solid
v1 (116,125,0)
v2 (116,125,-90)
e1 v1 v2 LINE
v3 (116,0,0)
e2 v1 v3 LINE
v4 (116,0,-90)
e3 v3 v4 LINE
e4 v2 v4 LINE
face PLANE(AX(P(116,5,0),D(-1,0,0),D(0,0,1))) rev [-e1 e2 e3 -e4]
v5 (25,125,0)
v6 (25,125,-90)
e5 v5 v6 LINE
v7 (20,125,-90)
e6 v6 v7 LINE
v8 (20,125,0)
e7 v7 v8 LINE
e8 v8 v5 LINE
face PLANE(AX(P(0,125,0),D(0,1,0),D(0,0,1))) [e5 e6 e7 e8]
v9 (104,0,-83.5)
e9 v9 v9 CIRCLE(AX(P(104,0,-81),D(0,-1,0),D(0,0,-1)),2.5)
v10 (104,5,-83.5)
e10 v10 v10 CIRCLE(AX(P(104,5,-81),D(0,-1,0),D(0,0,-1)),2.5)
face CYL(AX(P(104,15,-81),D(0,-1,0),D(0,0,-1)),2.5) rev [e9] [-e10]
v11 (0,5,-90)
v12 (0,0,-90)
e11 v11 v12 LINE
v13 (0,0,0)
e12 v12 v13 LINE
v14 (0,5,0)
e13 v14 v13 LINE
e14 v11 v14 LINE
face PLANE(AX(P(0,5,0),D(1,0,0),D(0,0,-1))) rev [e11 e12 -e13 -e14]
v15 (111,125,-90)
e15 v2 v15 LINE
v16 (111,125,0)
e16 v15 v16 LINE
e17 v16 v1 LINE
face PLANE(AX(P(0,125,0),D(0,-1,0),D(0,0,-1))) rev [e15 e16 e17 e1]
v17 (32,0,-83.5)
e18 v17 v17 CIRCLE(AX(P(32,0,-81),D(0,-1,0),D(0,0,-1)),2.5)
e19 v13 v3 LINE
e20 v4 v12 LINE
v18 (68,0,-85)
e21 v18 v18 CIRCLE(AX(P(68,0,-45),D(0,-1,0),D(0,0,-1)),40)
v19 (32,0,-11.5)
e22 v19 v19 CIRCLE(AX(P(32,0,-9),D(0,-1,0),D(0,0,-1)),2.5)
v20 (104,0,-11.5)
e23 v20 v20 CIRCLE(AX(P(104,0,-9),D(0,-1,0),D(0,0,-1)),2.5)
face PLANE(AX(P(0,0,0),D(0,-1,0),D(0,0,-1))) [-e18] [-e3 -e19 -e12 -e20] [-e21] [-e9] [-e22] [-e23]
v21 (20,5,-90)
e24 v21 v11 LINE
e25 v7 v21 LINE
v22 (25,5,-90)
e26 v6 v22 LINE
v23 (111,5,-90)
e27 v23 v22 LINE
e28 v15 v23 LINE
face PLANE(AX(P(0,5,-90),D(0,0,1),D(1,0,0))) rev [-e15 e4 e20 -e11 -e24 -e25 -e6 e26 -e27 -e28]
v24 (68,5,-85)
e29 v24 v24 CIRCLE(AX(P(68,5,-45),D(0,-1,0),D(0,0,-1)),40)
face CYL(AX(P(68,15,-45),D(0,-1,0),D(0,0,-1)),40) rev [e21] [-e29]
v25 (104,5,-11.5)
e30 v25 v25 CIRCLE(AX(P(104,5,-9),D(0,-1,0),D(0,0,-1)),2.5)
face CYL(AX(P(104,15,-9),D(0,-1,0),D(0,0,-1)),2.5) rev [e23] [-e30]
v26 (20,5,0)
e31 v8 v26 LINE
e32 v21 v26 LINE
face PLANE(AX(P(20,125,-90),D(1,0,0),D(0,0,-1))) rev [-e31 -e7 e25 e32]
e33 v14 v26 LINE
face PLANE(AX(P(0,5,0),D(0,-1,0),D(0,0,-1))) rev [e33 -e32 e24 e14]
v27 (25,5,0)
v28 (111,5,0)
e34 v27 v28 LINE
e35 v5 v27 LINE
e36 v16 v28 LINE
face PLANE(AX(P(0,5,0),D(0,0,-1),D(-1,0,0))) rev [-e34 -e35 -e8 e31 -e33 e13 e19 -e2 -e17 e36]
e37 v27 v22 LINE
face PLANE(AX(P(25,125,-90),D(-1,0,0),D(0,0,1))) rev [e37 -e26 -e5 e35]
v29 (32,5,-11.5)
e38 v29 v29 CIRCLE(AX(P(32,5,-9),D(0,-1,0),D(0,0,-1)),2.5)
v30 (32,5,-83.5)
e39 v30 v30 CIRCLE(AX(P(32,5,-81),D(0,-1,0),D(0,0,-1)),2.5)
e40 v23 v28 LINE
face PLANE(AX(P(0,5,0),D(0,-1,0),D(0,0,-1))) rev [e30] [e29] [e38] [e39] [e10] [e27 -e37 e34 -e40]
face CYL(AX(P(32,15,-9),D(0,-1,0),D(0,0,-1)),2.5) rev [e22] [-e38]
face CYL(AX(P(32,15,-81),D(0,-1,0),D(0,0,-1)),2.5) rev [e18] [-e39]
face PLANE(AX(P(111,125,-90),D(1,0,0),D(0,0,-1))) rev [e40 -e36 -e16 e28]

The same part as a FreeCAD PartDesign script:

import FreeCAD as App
import Part
import Sketcher

V = App.Vector
Q = App.Units.Quantity

doc = App.newDocument("Part")
params = doc.addObject("Spreadsheet::Sheet", "Params")
for row, (alias, value) in enumerate([
    ("sketch1_width", "116 mm"),
    ("sketch1_height", "90 mm"),
    ("pad1_length", "5 mm"),
    ("sketch2_width", "5 mm"),
    ("sketch2_height", "90 mm"),
    ("pad2_length", "120 mm"),
    ("sketch3_diameter", "80 mm"),
    ("pocket1_length", "15 mm"),
    ("sketch4_diameter", "5 mm"),
    ("pocket2_length", "15 mm"),
    ("sketch5_width", "5 mm"),
    ("sketch5_height", "90 mm"),
    ("pad3_length", "120 mm"),
], start=1):
    params.set(f"A{row}", alias)
    params.set(f"B{row}", "=" + value)
    params.setAlias(f"B{row}", alias)

body = doc.addObject("PartDesign::Body", "Body")

# Sketch on XZ plane
sketch1 = body.newObject("Sketcher::SketchObject", "Sketch")
sketch1.AttachmentSupport = (doc.getObject("XZ_Plane"), [""])
sketch1.MapMode = "FlatFace"
sketch1.addGeometry(Part.LineSegment(V(0, -90, 0), V(0, 0, 0)), False)
sketch1.addGeometry(Part.LineSegment(V(0, 0, 0), V(116, 0, 0)), False)
sketch1.addGeometry(Part.LineSegment(V(116, 0, 0), V(116, -90, 0)), False)
sketch1.addGeometry(Part.LineSegment(V(116, -90, 0), V(0, -90, 0)), False)
sketch1.addConstraint(Sketcher.Constraint("Coincident", 0, 2, 1, 1))
sketch1.addConstraint(Sketcher.Constraint("Coincident", 1, 2, 2, 1))
sketch1.addConstraint(Sketcher.Constraint("Coincident", 2, 2, 3, 1))
sketch1.addConstraint(Sketcher.Constraint("Coincident", 3, 2, 0, 1))
sketch1.addConstraint(Sketcher.Constraint("Vertical", 0))
sketch1.addConstraint(Sketcher.Constraint("Horizontal", 1))
sketch1.addConstraint(Sketcher.Constraint("Vertical", 2))
sketch1.addConstraint(Sketcher.Constraint("Horizontal", 3))
sketch1.addConstraint(Sketcher.Constraint("Coincident", 0, 2, -1, 1))
sketch1.addConstraint(Sketcher.Constraint("DistanceX", 1, 1, 1, 2, Q("116 mm")))
sketch1.addConstraint(Sketcher.Constraint("DistanceY", 0, 1, 0, 2, Q("90 mm")))
sketch1.setExpression("Constraints[9]", "Params.sketch1_width")
sketch1.setExpression("Constraints[10]", "Params.sketch1_height")
pad1 = body.newObject("PartDesign::Pad", "Pad")
pad1.Profile = sketch1
pad1.setExpression("Length", "Params.pad1_length")
pad1.Reversed = True

# Sketch on XZ plane
sketch2 = body.newObject("Sketcher::SketchObject", "Sketch001")
sketch2.AttachmentSupport = (doc.getObject("XZ_Plane"), [""])
sketch2.MapMode = "FlatFace"
sketch2.AttachmentOffset = App.Placement(V(0, 0, -5), App.Rotation())
sketch2.addGeometry(Part.LineSegment(V(111, -90, 0), V(111, 0, 0)), False)
sketch2.addGeometry(Part.LineSegment(V(111, 0, 0), V(116, 0, 0)), False)
sketch2.addGeometry(Part.LineSegment(V(116, 0, 0), V(116, -90, 0)), False)
sketch2.addGeometry(Part.LineSegment(V(116, -90, 0), V(111, -90, 0)), False)
sketch2.addConstraint(Sketcher.Constraint("Coincident", 0, 2, 1, 1))
sketch2.addConstraint(Sketcher.Constraint("Coincident", 1, 2, 2, 1))
sketch2.addConstraint(Sketcher.Constraint("Coincident", 2, 2, 3, 1))
sketch2.addConstraint(Sketcher.Constraint("Coincident", 3, 2, 0, 1))
sketch2.addConstraint(Sketcher.Constraint("Vertical", 0))
sketch2.addConstraint(Sketcher.Constraint("Horizontal", 1))
sketch2.addConstraint(Sketcher.Constraint("Vertical", 2))
sketch2.addConstraint(Sketcher.Constraint("Horizontal", 3))
sketch2.addConstraint(Sketcher.Constraint("PointOnObject", 0, 2, -1))
sketch2.addConstraint(Sketcher.Constraint("DistanceX", 1, 1, 1, 2, Q("5 mm")))
sketch2.addConstraint(Sketcher.Constraint("DistanceY", 0, 1, 0, 2, Q("90 mm")))
sketch2.addConstraint(Sketcher.Constraint("DistanceX", -1, 1, 0, 2, Q("111 mm")))
sketch2.setExpression("Constraints[9]", "Params.sketch2_width")
sketch2.setExpression("Constraints[10]", "Params.sketch2_height")
pad2 = body.newObject("PartDesign::Pad", "Pad001")
pad2.Profile = sketch2
pad2.setExpression("Length", "Params.pad2_length")
pad2.Reversed = True

# Sketch on XZ plane
sketch3 = body.newObject("Sketcher::SketchObject", "Sketch002")
sketch3.AttachmentSupport = (doc.getObject("XZ_Plane"), [""])
sketch3.MapMode = "FlatFace"
sketch3.addGeometry(Part.Circle(V(68, -45, 0), V(0, 0, 1), 40), False)
sketch3.addConstraint(Sketcher.Constraint("Diameter", 0, Q("80 mm")))
sketch3.addConstraint(Sketcher.Constraint("DistanceX", -1, 1, 0, 3, Q("68 mm")))
sketch3.addConstraint(Sketcher.Constraint("DistanceY", 0, 3, -1, 1, Q("45 mm")))
sketch3.setExpression("Constraints[0]", "Params.sketch3_diameter")
pocket1 = body.newObject("PartDesign::Pocket", "Pocket")
pocket1.Profile = sketch3
pocket1.setExpression("Length", "Params.pocket1_length")

# Sketch on XZ plane
sketch4 = body.newObject("Sketcher::SketchObject", "Sketch003")
sketch4.AttachmentSupport = (doc.getObject("XZ_Plane"), [""])
sketch4.MapMode = "FlatFace"
sketch4.addGeometry(Part.Circle(V(32, -9, 0), V(0, 0, 1), 2.5), False)
sketch4.addGeometry(Part.Circle(V(104, -9, 0), V(0, 0, 1), 2.5), False)
sketch4.addGeometry(Part.Circle(V(104, -81, 0), V(0, 0, 1), 2.5), False)
sketch4.addGeometry(Part.Circle(V(32, -81, 0), V(0, 0, 1), 2.5), False)
sketch4.addConstraint(Sketcher.Constraint("Equal", 0, 1))
sketch4.addConstraint(Sketcher.Constraint("Equal", 1, 2))
sketch4.addConstraint(Sketcher.Constraint("Equal", 2, 3))
sketch4.addConstraint(Sketcher.Constraint("Horizontal", 0, 3, 1, 3))
sketch4.addConstraint(Sketcher.Constraint("Horizontal", 2, 3, 3, 3))
sketch4.addConstraint(Sketcher.Constraint("Vertical", 1, 3, 2, 3))
sketch4.addConstraint(Sketcher.Constraint("Vertical", 0, 3, 3, 3))
sketch4.addConstraint(Sketcher.Constraint("Diameter", 0, Q("5 mm")))
sketch4.addConstraint(Sketcher.Constraint("DistanceX", -1, 1, 0, 3, Q("32 mm")))
sketch4.addConstraint(Sketcher.Constraint("DistanceY", 0, 3, -1, 1, Q("9 mm")))
sketch4.addConstraint(Sketcher.Constraint("DistanceX", -1, 1, 1, 3, Q("104 mm")))
sketch4.addConstraint(Sketcher.Constraint("DistanceY", 2, 3, -1, 1, Q("81 mm")))
sketch4.setExpression("Constraints[7]", "Params.sketch4_diameter")
pocket2 = body.newObject("PartDesign::Pocket", "Pocket001")
pocket2.Profile = sketch4
pocket2.setExpression("Length", "Params.pocket2_length")

# Sketch on XZ plane
sketch5 = body.newObject("Sketcher::SketchObject", "Sketch004")
sketch5.AttachmentSupport = (doc.getObject("XZ_Plane"), [""])
sketch5.MapMode = "FlatFace"
sketch5.AttachmentOffset = App.Placement(V(0, 0, -5), App.Rotation())
sketch5.addGeometry(Part.LineSegment(V(20, -90, 0), V(20, 0, 0)), False)
sketch5.addGeometry(Part.LineSegment(V(20, 0, 0), V(25, 0, 0)), False)
sketch5.addGeometry(Part.LineSegment(V(25, 0, 0), V(25, -90, 0)), False)
sketch5.addGeometry(Part.LineSegment(V(25, -90, 0), V(20, -90, 0)), False)
sketch5.addConstraint(Sketcher.Constraint("Coincident", 0, 2, 1, 1))
sketch5.addConstraint(Sketcher.Constraint("Coincident", 1, 2, 2, 1))
sketch5.addConstraint(Sketcher.Constraint("Coincident", 2, 2, 3, 1))
sketch5.addConstraint(Sketcher.Constraint("Coincident", 3, 2, 0, 1))
sketch5.addConstraint(Sketcher.Constraint("Vertical", 0))
sketch5.addConstraint(Sketcher.Constraint("Horizontal", 1))
sketch5.addConstraint(Sketcher.Constraint("Vertical", 2))
sketch5.addConstraint(Sketcher.Constraint("Horizontal", 3))
sketch5.addConstraint(Sketcher.Constraint("PointOnObject", 0, 2, -1))
sketch5.addConstraint(Sketcher.Constraint("DistanceX", 1, 1, 1, 2, Q("5 mm")))
sketch5.addConstraint(Sketcher.Constraint("DistanceY", 0, 1, 0, 2, Q("90 mm")))
sketch5.addConstraint(Sketcher.Constraint("DistanceX", -1, 1, 0, 2, Q("20 mm")))
sketch5.setExpression("Constraints[9]", "Params.sketch5_width")
sketch5.setExpression("Constraints[10]", "Params.sketch5_height")
pad3 = body.newObject("PartDesign::Pad", "Pad002")
pad3.Profile = sketch5
pad3.setExpression("Length", "Params.pad3_length")
pad3.Reversed = True

doc.recompute()
